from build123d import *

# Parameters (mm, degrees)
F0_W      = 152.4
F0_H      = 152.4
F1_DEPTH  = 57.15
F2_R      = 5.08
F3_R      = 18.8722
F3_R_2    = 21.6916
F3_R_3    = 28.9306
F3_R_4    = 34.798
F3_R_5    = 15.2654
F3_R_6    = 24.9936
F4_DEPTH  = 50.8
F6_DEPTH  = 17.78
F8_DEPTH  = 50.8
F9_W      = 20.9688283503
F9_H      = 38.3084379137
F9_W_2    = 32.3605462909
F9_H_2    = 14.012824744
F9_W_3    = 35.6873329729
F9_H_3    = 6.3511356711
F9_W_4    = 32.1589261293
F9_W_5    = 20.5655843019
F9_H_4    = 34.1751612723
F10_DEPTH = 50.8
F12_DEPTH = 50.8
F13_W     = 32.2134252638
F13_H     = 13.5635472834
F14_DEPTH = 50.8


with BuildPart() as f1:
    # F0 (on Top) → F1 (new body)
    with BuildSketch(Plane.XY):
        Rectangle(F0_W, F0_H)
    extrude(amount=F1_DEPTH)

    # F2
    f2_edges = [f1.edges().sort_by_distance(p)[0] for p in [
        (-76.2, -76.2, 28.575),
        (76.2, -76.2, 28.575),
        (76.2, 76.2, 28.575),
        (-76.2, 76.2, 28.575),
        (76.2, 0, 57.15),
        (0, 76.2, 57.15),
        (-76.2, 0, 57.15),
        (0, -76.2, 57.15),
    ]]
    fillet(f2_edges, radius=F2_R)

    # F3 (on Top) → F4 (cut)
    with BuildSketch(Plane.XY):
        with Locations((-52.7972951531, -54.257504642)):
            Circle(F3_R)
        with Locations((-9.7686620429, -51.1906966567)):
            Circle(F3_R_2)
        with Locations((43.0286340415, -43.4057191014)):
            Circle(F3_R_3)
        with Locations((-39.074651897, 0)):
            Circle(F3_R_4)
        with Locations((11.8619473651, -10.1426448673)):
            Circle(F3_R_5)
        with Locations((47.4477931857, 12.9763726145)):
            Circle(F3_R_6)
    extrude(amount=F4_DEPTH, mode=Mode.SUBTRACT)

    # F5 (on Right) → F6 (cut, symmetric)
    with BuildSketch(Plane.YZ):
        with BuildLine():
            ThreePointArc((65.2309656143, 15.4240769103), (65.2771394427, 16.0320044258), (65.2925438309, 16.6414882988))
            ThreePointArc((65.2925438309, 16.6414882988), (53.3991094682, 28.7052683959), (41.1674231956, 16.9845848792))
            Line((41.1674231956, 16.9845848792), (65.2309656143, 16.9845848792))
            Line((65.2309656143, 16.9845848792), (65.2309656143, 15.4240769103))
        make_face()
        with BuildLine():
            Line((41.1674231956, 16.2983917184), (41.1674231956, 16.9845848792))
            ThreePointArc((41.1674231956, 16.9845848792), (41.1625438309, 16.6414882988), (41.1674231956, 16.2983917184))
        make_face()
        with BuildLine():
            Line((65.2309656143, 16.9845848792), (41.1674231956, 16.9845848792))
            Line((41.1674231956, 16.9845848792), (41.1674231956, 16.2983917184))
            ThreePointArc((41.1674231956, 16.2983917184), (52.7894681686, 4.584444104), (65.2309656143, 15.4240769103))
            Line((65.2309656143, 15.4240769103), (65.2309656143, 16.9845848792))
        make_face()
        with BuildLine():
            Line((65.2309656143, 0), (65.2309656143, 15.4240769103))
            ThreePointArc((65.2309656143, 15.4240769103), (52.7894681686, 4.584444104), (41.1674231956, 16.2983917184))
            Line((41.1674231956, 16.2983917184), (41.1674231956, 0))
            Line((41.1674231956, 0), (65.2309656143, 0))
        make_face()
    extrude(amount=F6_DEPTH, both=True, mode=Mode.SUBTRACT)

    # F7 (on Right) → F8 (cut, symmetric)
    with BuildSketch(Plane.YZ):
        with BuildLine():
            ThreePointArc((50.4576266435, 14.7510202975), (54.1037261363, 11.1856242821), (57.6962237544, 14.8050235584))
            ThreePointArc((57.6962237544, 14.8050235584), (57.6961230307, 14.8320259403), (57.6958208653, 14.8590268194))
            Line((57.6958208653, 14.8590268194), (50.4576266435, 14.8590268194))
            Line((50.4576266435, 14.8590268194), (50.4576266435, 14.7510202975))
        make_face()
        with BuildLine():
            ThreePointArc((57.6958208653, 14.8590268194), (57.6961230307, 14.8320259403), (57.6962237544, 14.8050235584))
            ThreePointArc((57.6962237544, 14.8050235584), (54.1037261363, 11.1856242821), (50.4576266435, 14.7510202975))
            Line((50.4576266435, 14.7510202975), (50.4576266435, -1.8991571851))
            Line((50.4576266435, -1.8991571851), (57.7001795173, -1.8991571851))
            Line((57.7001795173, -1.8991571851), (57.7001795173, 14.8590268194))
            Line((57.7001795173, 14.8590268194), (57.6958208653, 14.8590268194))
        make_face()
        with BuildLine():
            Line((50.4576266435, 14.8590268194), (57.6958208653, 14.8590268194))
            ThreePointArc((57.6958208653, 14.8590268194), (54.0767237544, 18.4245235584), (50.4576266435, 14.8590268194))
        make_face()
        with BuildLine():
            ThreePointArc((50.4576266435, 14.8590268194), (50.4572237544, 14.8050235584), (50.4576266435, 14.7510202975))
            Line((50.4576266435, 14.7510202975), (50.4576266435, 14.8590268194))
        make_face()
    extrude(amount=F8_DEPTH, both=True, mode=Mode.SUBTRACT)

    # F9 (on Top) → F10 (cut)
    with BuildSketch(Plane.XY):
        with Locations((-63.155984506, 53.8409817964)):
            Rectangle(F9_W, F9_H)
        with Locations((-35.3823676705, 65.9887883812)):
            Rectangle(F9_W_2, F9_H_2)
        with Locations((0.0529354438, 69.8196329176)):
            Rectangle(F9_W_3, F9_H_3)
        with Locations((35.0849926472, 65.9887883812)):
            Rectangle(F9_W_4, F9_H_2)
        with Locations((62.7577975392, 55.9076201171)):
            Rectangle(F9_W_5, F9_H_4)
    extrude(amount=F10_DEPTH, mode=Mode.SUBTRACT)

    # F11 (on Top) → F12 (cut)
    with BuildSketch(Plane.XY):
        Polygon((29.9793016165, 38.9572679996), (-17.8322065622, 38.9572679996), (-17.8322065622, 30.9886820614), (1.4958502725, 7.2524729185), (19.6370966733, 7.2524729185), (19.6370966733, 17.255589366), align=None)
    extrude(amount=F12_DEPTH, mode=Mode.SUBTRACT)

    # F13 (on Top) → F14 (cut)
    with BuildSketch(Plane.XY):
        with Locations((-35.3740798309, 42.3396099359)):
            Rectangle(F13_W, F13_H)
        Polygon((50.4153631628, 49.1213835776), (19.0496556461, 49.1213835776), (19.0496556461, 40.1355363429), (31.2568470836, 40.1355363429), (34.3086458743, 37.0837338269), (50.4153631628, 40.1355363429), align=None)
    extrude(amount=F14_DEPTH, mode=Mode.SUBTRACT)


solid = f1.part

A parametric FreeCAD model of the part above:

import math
import FreeCAD as App
import Part
import Sketcher
from FreeCAD import Vector
Q = App.Units.Quantity


def edges_at(feature, points):
    """Names of the edges that pass closest to the given points."""
    edges = feature.Shape.Edges
    near = lambda p: min(range(len(edges)), key=lambda i: edges[i].distToShape(Part.Vertex(*p))[0])
    return sorted({f"Edge{near(p) + 1}" for p in points})

doc = App.newDocument("Part")
body = doc.addObject("PartDesign::Body", "Body")

# Sketch on XY plane
sketch1 = body.newObject("Sketcher::SketchObject", "Sketch")
sketch1.AttachmentSupport = (doc.getObject("XY_Plane"), [""])
sketch1.MapMode = "FlatFace"
sketch1.addGeometry([
    Part.LineSegment(Vector(-76.2, 76.2, 0), Vector(-76.2, -76.2, 0)),
    Part.LineSegment(Vector(-76.2, -76.2, 0), Vector(76.2, -76.2, 0)),
    Part.LineSegment(Vector(76.2, -76.2, 0), Vector(76.2, 76.2, 0)),
    Part.LineSegment(Vector(76.2, 76.2, 0), Vector(-76.2, 76.2, 0)),
], False)
sketch1.addConstraint([
    Sketcher.Constraint("Coincident", 0, 2, 1, 1),
    Sketcher.Constraint("Coincident", 1, 2, 2, 1),
    Sketcher.Constraint("Coincident", 2, 2, 3, 1),
    Sketcher.Constraint("Coincident", 3, 2, 0, 1),
    Sketcher.Constraint("Vertical", 0),
    Sketcher.Constraint("Horizontal", 1),
    Sketcher.Constraint("Vertical", 2),
    Sketcher.Constraint("Horizontal", 3),
    Sketcher.Constraint("Symmetric", 0, 2, 2, 2, -1, 1),
    Sketcher.Constraint("Equal", 3, 0),
    Sketcher.Constraint("DistanceX", 1, 1, 1, 2, Q("6 in")),
])
pad1 = body.newObject("PartDesign::Pad", "Pad")
pad1.Profile = sketch1
pad1.Length = Q("2.25 in")
doc.recompute()

fillet = body.newObject("PartDesign::Fillet", "Fillet")
fillet.Base = (pad1, edges_at(pad1, [
    (-76.2, -76.2, 28.575),
    (76.2, -76.2, 28.575),
    (76.2, 76.2, 28.575),
    (-76.2, 76.2, 28.575),
    (76.2, 0, 57.15),
    (0, 76.2, 57.15),
    (-76.2, 0, 57.15),
    (0, -76.2, 57.15),
]))
fillet.Radius = Q("0.2 in")

# Sketch on XY plane
sketch2 = body.newObject("Sketcher::SketchObject", "Sketch001")
sketch2.AttachmentSupport = (doc.getObject("XY_Plane"), [""])
sketch2.MapMode = "FlatFace"
sketch2.addGeometry([
    Part.Circle(Vector(-52.797295, -54.257505, 0), Vector(0, 0, 1), 18.8722),  # 0
    Part.Circle(Vector(-9.768662, -51.190697, 0), Vector(0, 0, 1), 21.6916),  # 1
    Part.Circle(Vector(43.028634, -43.405719, 0), Vector(0, 0, 1), 28.9306),  # 2
    Part.Circle(Vector(-39.074652, 0, 0), Vector(0, 0, 1), 34.798),  # 3
    Part.Circle(Vector(11.861947, -10.142645, 0), Vector(0, 0, 1), 15.2654),  # 4
    Part.Circle(Vector(47.447793, 12.976373, 0), Vector(0, 0, 1), 24.9936),  # 5
], False)
sketch2.addConstraint([
    Sketcher.Constraint("PointOnObject", 3, 3, -1),
    Sketcher.Constraint("Diameter", 3, Q("2.74 in")),
    Sketcher.Constraint("Diameter", 0, Q("1.486 in")),
    Sketcher.Constraint("Diameter", 1, Q("1.708 in")),
    Sketcher.Constraint("Diameter", 2, Q("2.278 in")),
    Sketcher.Constraint("Diameter", 4, Q("1.202 in")),
    Sketcher.Constraint("Diameter", 5, Q("1.968 in")),
    Sketcher.Constraint("DistanceX", 3, 3, 4, 3, 50.936599),
    Sketcher.Constraint("DistanceY", 2, 3, -1, 1, 43.405719),
    Sketcher.Constraint("DistanceX", 3, 3, -1, 1, 39.074652),
    Sketcher.Constraint("DistanceX", 0, 3, 2, 3, 95.825929),
    Sketcher.Constraint("DistanceX", 3, 3, 1, 3, 29.30599),
    Sketcher.Constraint("DistanceY", 1, 3, 4, 3, 41.048052),
    Sketcher.Constraint("DistanceY", 0, 3, 4, 3, 44.11486),
    Sketcher.Constraint("DistanceX", 2, 3, 5, 3, 4.419159),
    Sketcher.Constraint("DistanceY", 2, 3, 5, 3, 56.382092),
    Sketcher.Constraint("DistanceY", 1, 3, 5, 3, 64.167069),
    Sketcher.Constraint("DistanceX", 0, 3, -1, 1, 52.797295),
])
pocket1 = body.newObject("PartDesign::Pocket", "Pocket")
pocket1.Profile = sketch2
pocket1.Length = Q("2 in")
pocket1.Reversed = True

# Sketch on YZ plane
sketch3 = body.newObject("Sketcher::SketchObject", "Sketch002")
sketch3.AttachmentSupport = (doc.getObject("YZ_Plane"), [""])
sketch3.MapMode = "FlatFace"
sketch3.addGeometry([
    Part.ArcOfCircle(Part.Circle(Vector(53.227544, 16.641488, 0), Vector(0, 0, 1), 12.065), math.radians(-5.791251), math.radians(0)),  # 0
    Part.ArcOfCircle(Part.Circle(Vector(53.227544, 16.641488, 0), Vector(0, 0, 1), 12.065), math.radians(0), math.radians(178.37044)),  # 1
    Part.ArcOfCircle(Part.Circle(Vector(53.227544, 16.641488, 0), Vector(0, 0, 1), 12.065), math.radians(178.37044), math.radians(181.62956)),  # 2
    Part.LineSegment(Vector(41.167423, 16.298392, 0), Vector(41.167423, 0, 0)),  # 3
    Part.LineSegment(Vector(41.167423, 0, 0), Vector(65.230966, 0, 0)),  # 4
    Part.LineSegment(Vector(65.230966, 0, 0), Vector(65.230966, 15.424077, 0)),  # 5
], False)
sketch3.addConstraint([
    Sketcher.Constraint("Tangent", 0, 2, 1, 1),
    Sketcher.Constraint("Tangent", 1, 2, 2, 1),
    Sketcher.Constraint("Coincident", 2, 2, 3, 1),
    Sketcher.Constraint("Coincident", 3, 2, 4, 1),
    Sketcher.Constraint("Coincident", 4, 2, 5, 1),
    Sketcher.Constraint("Coincident", 5, 2, 0, 1),
    Sketcher.Constraint("Vertical", 3),
    Sketcher.Constraint("Horizontal", 4),
    Sketcher.Constraint("Vertical", 5),
    Sketcher.Constraint("Coincident", 2, 3, 0, 3),
    Sketcher.Constraint("PointOnObject", 3, 2, -1),
    Sketcher.Constraint("Horizontal", 2, 3, 0, 2),
    Sketcher.Constraint("Vertical", 1, 2, 2, 2),
    Sketcher.Constraint("Radius", 0, Q("0.475 in")),
    Sketcher.Constraint("DistanceY", 3, 2, 3, 1, 16.298392),
    Sketcher.Constraint("DistanceX", 4, 1, 4, 2, 24.063542),
    Sketcher.Constraint("DistanceY", 5, 1, 5, 2, 15.424077),
    Sketcher.Constraint("DistanceX", -1, 1, 0, 3, 53.227544),
])
pocket2 = body.newObject("PartDesign::Pocket", "Pocket001")
pocket2.Profile = sketch3
pocket2.Length = Q("1.4 in")
pocket2.Midplane = True

# Sketch on YZ plane
sketch4 = body.newObject("Sketcher::SketchObject", "Sketch003")
sketch4.AttachmentSupport = (doc.getObject("YZ_Plane"), [""])
sketch4.MapMode = "FlatFace"
sketch4.addGeometry([
    Part.LineSegment(Vector(50.457627, 14.75102, 0), Vector(50.457627, -1.899157, 0)),  # 0
    Part.LineSegment(Vector(50.457627, -1.899157, 0), Vector(57.70018, -1.899157, 0)),  # 1
    Part.LineSegment(Vector(57.70018, -1.899157, 0), Vector(57.70018, 14.859027, 0)),  # 2
    Part.LineSegment(Vector(57.70018, 14.859027, 0), Vector(57.695821, 14.859027, 0)),  # 3
    Part.ArcOfCircle(Part.Circle(Vector(54.076724, 14.805024, 0), Vector(0, 0, 1), 3.6195), math.radians(0.85489), math.radians(179.14511)),  # 4
    Part.ArcOfCircle(Part.Circle(Vector(54.076724, 14.805024, 0), Vector(0, 0, 1), 3.6195), math.radians(179.14511), math.radians(180.85489)),  # 5
], False)
sketch4.addConstraint([
    Sketcher.Constraint("Coincident", 0, 2, 1, 1),
    Sketcher.Constraint("Coincident", 1, 2, 2, 1),
    Sketcher.Constraint("Coincident", 2, 2, 3, 1),
    Sketcher.Constraint("Coincident", 3, 2, 4, 1),
    Sketcher.Constraint("Tangent", 4, 2, 5, 1),
    Sketcher.Constraint("Coincident", 5, 2, 0, 1),
    Sketcher.Constraint("Vertical", 0),
    Sketcher.Constraint("Horizontal", 1),
    Sketcher.Constraint("Vertical", 2),
    Sketcher.Constraint("Horizontal", 3),
    Sketcher.Constraint("Equal", 4, 5),
    Sketcher.Constraint("Horizontal", 3, 2, 4, 2),
    Sketcher.Constraint("Vertical", 0, 2, 4, 2),
    Sketcher.Constraint("Radius", 4, Q("0.1425 in")),
    Sketcher.Constraint("DistanceX", 3, 2, 3, 1, 0.004359),
    Sketcher.Constraint("DistanceX", 1, 1, 1, 2, 7.242553),
    Sketcher.Constraint("DistanceY", 0, 2, 0, 1, 16.650177),
    Sketcher.Constraint("DistanceX", -1, 1, 1, 2, 57.70018),
    Sketcher.Constraint("DistanceY", -1, 1, 5, 2, 14.75102),
])
pocket3 = body.newObject("PartDesign::Pocket", "Pocket002")
pocket3.Profile = sketch4
pocket3.Length = Q("4 in")
pocket3.Midplane = True

# Sketch on XY plane
sketch5 = body.newObject("Sketcher::SketchObject", "Sketch004")
sketch5.AttachmentSupport = (doc.getObject("XY_Plane"), [""])
sketch5.MapMode = "FlatFace"
sketch5.addGeometry([
    Part.LineSegment(Vector(-73.640399, 72.995201, 0), Vector(-73.640399, 34.686763, 0)),  # 0
    Part.LineSegment(Vector(-73.640399, 34.686763, 0), Vector(-52.67157, 34.686763, 0)),  # 1
    Part.LineSegment(Vector(-52.67157, 34.686763, 0), Vector(-52.67157, 72.995201, 0)),  # 2
    Part.LineSegment(Vector(-52.67157, 72.995201, 0), Vector(-73.640399, 72.995201, 0)),  # 3
    Part.LineSegment(Vector(-51.562641, 72.995201, 0), Vector(-51.562641, 58.982376, 0)),  # 4
    Part.LineSegment(Vector(-51.562641, 58.982376, 0), Vector(-19.202095, 58.982376, 0)),  # 5
    Part.LineSegment(Vector(-19.202095, 58.982376, 0), Vector(-19.202095, 72.995201, 0)),  # 6
    Part.LineSegment(Vector(-19.202095, 72.995201, 0), Vector(-51.562641, 72.995201, 0)),  # 7
    Part.LineSegment(Vector(-17.790731, 72.995201, 0), Vector(-17.790731, 66.644065, 0)),  # 8
    Part.LineSegment(Vector(-17.790731, 66.644065, 0), Vector(17.896602, 66.644065, 0)),  # 9
    Part.LineSegment(Vector(17.896602, 66.644065, 0), Vector(17.896602, 72.995201, 0)),  # 10
    Part.LineSegment(Vector(17.896602, 72.995201, 0), Vector(-17.790731, 72.995201, 0)),  # 11
    Part.LineSegment(Vector(19.00553, 72.995201, 0), Vector(19.00553, 58.982376, 0)),  # 12
    Part.LineSegment(Vector(19.00553, 58.982376, 0), Vector(51.164456, 58.982376, 0)),  # 13
    Part.LineSegment(Vector(51.164456, 58.982376, 0), Vector(51.164456, 72.995201, 0)),  # 14
    Part.LineSegment(Vector(51.164456, 72.995201, 0), Vector(19.00553, 72.995201, 0)),  # 15
    Part.LineSegment(Vector(52.475005, 72.995201, 0), Vector(52.475005, 38.820039, 0)),  # 16
    Part.LineSegment(Vector(52.475005, 38.820039, 0), Vector(73.04059, 38.820039, 0)),  # 17
    Part.LineSegment(Vector(73.04059, 38.820039, 0), Vector(73.04059, 72.995201, 0)),  # 18
    Part.LineSegment(Vector(73.04059, 72.995201, 0), Vector(52.475005, 72.995201, 0)),  # 19
], False)
sketch5.addConstraint([
    Sketcher.Constraint("Coincident", 0, 2, 1, 1),
    Sketcher.Constraint("Coincident", 1, 2, 2, 1),
    Sketcher.Constraint("Coincident", 2, 2, 3, 1),
    Sketcher.Constraint("Coincident", 3, 2, 0, 1),
    Sketcher.Constraint("Coincident", 4, 2, 5, 1),
    Sketcher.Constraint("Coincident", 5, 2, 6, 1),
    Sketcher.Constraint("Coincident", 6, 2, 7, 1),
    Sketcher.Constraint("Coincident", 7, 2, 4, 1),
    Sketcher.Constraint("Coincident", 8, 2, 9, 1),
    Sketcher.Constraint("Coincident", 9, 2, 10, 1),
    Sketcher.Constraint("Coincident", 10, 2, 11, 1),
    Sketcher.Constraint("Coincident", 11, 2, 8, 1),
    Sketcher.Constraint("Coincident", 12, 2, 13, 1),
    Sketcher.Constraint("Coincident", 13, 2, 14, 1),
    Sketcher.Constraint("Coincident", 14, 2, 15, 1),
    Sketcher.Constraint("Coincident", 15, 2, 12, 1),
    Sketcher.Constraint("Coincident", 16, 2, 17, 1),
    Sketcher.Constraint("Coincident", 17, 2, 18, 1),
    Sketcher.Constraint("Coincident", 18, 2, 19, 1),
    Sketcher.Constraint("Coincident", 19, 2, 16, 1),
    Sketcher.Constraint("Vertical", 0),
    Sketcher.Constraint("Horizontal", 1),
    Sketcher.Constraint("Vertical", 2),
    Sketcher.Constraint("Horizontal", 3),
    Sketcher.Constraint("Vertical", 4),
    Sketcher.Constraint("Horizontal", 5),
    Sketcher.Constraint("Vertical", 6),
    Sketcher.Constraint("Horizontal", 7),
    Sketcher.Constraint("Vertical", 8),
    Sketcher.Constraint("Horizontal", 9),
    Sketcher.Constraint("Vertical", 10),
    Sketcher.Constraint("Horizontal", 11),
    Sketcher.Constraint("Vertical", 12),
    Sketcher.Constraint("Horizontal", 13),
    Sketcher.Constraint("Vertical", 14),
    Sketcher.Constraint("Horizontal", 15),
    Sketcher.Constraint("Vertical", 16),
    Sketcher.Constraint("Horizontal", 17),
    Sketcher.Constraint("Vertical", 18),
    Sketcher.Constraint("Horizontal", 19),
    Sketcher.Constraint("Horizontal", 3, 2, 6, 2),
    Sketcher.Constraint("Horizontal", 7, 2, 10, 2),
    Sketcher.Constraint("Horizontal", 5, 2, 12, 2),
    Sketcher.Constraint("Horizontal", 11, 2, 14, 2),
    Sketcher.Constraint("Horizontal", 15, 2, 18, 2),
    Sketcher.Constraint("DistanceX", 1, 1, 1, 2, 20.968828),
    Sketcher.Constraint("DistanceY", 16, 2, 16, 1, 34.175161),
    Sketcher.Constraint("DistanceX", 0, 2, -1, 1, 73.640399),
    Sketcher.Constraint("DistanceY", -1, 1, 2, 2, 72.995201),
    Sketcher.Constraint("DistanceX", -1, 1, 9, 2, 17.896602),
    Sketcher.Constraint("DistanceX", 5, 1, 5, 2, 32.360546),
    Sketcher.Constraint("DistanceX", 9, 1, 9, 2, 35.687333),
    Sketcher.Constraint("DistanceX", 13, 1, 13, 2, 32.158926),
    Sketcher.Constraint("DistanceX", 17, 1, 17, 2, 20.565584),
    Sketcher.Constraint("DistanceY", 0, 2, 0, 1, 38.308438),
    Sketcher.Constraint("DistanceY", 4, 2, 4, 1, 14.012825),
    Sketcher.Constraint("DistanceY", 8, 2, 8, 1, 6.351136),
    Sketcher.Constraint("DistanceX", 4, 2, -1, 1, 51.562641),
    Sketcher.Constraint("DistanceX", -1, 1, 12, 2, 19.00553),
    Sketcher.Constraint("DistanceX", -1, 1, 17, 2, 73.04059),
])
pocket4 = body.newObject("PartDesign::Pocket", "Pocket003")
pocket4.Profile = sketch5
pocket4.Length = Q("2 in")
pocket4.Reversed = True

# Sketch on XY plane
sketch6 = body.newObject("Sketcher::SketchObject", "Sketch005")
sketch6.AttachmentSupport = (doc.getObject("XY_Plane"), [""])
sketch6.MapMode = "FlatFace"
sketch6.addGeometry([
    Part.LineSegment(Vector(29.979302, 38.957268, 0), Vector(-17.832207, 38.957268, 0)),  # 0
    Part.LineSegment(Vector(-17.832207, 38.957268, 0), Vector(-17.832207, 30.988682, 0)),  # 1
    Part.LineSegment(Vector(-17.832207, 30.988682, 0), Vector(1.49585, 7.252473, 0)),  # 2
    Part.LineSegment(Vector(1.49585, 7.252473, 0), Vector(19.637097, 7.252473, 0)),  # 3
    Part.LineSegment(Vector(19.637097, 7.252473, 0), Vector(19.637097, 17.255589, 0)),  # 4
    Part.LineSegment(Vector(19.637097, 17.255589, 0), Vector(29.979302, 38.957268, 0)),  # 5
], False)
sketch6.addConstraint([
    Sketcher.Constraint("Coincident", 0, 2, 1, 1),
    Sketcher.Constraint("Coincident", 1, 2, 2, 1),
    Sketcher.Constraint("Coincident", 2, 2, 3, 1),
    Sketcher.Constraint("Coincident", 3, 2, 4, 1),
    Sketcher.Constraint("Coincident", 4, 2, 5, 1),
    Sketcher.Constraint("Coincident", 5, 2, 0, 1),
    Sketcher.Constraint("Horizontal", 0),
    Sketcher.Constraint("Vertical", 1),
    Sketcher.Constraint("Horizontal", 3),
    Sketcher.Constraint("Vertical", 4),
    Sketcher.Constraint("DistanceX", 0, 2, 0, 1, 47.811508),
    Sketcher.Constraint("DistanceX", -1, 1, 5, 2, 29.979302),
    Sketcher.Constraint("Distance", 2, 30.610152),
    Sketcher.Constraint("Distance", 5, 24.040051),
    Sketcher.Constraint("DistanceX", 3, 1, 3, 2, 18.141246),
    Sketcher.Constraint("DistanceY", 1, 2, 1, 1, 7.968586),
    Sketcher.Constraint("DistanceY", 4, 1, 4, 2, 10.003116),
    Sketcher.Constraint("DistanceY", -1, 1, 4, 2, 17.255589),
])
pocket5 = body.newObject("PartDesign::Pocket", "Pocket004")
pocket5.Profile = sketch6
pocket5.Length = Q("2 in")
pocket5.Reversed = True

# Sketch on XY plane
sketch7 = body.newObject("Sketcher::SketchObject", "Sketch006")
sketch7.AttachmentSupport = (doc.getObject("XY_Plane"), [""])
sketch7.MapMode = "FlatFace"
sketch7.addGeometry([
    Part.LineSegment(Vector(-51.480792, 49.121384, 0), Vector(-51.480792, 35.557836, 0)),  # 0
    Part.LineSegment(Vector(-51.480792, 35.557836, 0), Vector(-19.267367, 35.557836, 0)),  # 1
    Part.LineSegment(Vector(-19.267367, 35.557836, 0), Vector(-19.267367, 49.121384, 0)),  # 2
    Part.LineSegment(Vector(-19.267367, 49.121384, 0), Vector(-51.480792, 49.121384, 0)),  # 3
    Part.LineSegment(Vector(50.415363, 49.121384, 0), Vector(19.049656, 49.121384, 0)),  # 4
    Part.LineSegment(Vector(19.049656, 49.121384, 0), Vector(19.049656, 40.135536, 0)),  # 5
    Part.LineSegment(Vector(19.049656, 40.135536, 0), Vector(31.256847, 40.135536, 0)),  # 6
    Part.LineSegment(Vector(31.256847, 40.135536, 0), Vector(34.308646, 37.083734, 0)),  # 7
    Part.LineSegment(Vector(34.308646, 37.083734, 0), Vector(50.415363, 40.135536, 0)),  # 8
    Part.LineSegment(Vector(50.415363, 40.135536, 0), Vector(50.415363, 49.121384, 0)),  # 9
], False)
sketch7.addConstraint([
    Sketcher.Constraint("Coincident", 0, 2, 1, 1),
    Sketcher.Constraint("Coincident", 1, 2, 2, 1),
    Sketcher.Constraint("Coincident", 2, 2, 3, 1),
    Sketcher.Constraint("Coincident", 3, 2, 0, 1),
    Sketcher.Constraint("Coincident", 4, 2, 5, 1),
    Sketcher.Constraint("Coincident", 5, 2, 6, 1),
    Sketcher.Constraint("Coincident", 6, 2, 7, 1),
    Sketcher.Constraint("Coincident", 7, 2, 8, 1),
    Sketcher.Constraint("Coincident", 8, 2, 9, 1),
    Sketcher.Constraint("Coincident", 9, 2, 4, 1),
    Sketcher.Constraint("Vertical", 0),
    Sketcher.Constraint("Horizontal", 1),
    Sketcher.Constraint("Vertical", 2),
    Sketcher.Constraint("Horizontal", 3),
    Sketcher.Constraint("Horizontal", 4),
    Sketcher.Constraint("Vertical", 5),
    Sketcher.Constraint("Horizontal", 6),
    Sketcher.Constraint("Vertical", 9),
    Sketcher.Constraint("Horizontal", 3, 2, 4, 2),
    Sketcher.Constraint("Horizontal", 6, 2, 8, 2),
    Sketcher.Constraint("DistanceX", 6, 1, 6, 2, 12.207191),
    Sketcher.Constraint("DistanceY", 1, 2, 5, 2, 4.5777),
    Sketcher.Constraint("DistanceX", 6, 2, 7, 2, 3.051799),
    Sketcher.Constraint("DistanceX", 1, 1, 1, 2, 32.213425),
    Sketcher.Constraint("DistanceX", 4, 2, 4, 1, 31.365708),
    Sketcher.Constraint("DistanceY", 0, 2, 0, 1, 13.563547),
    Sketcher.Constraint("DistanceX", 3, 2, 4, 2, 70.530448),
    Sketcher.Constraint("DistanceY", 7, 2, 4, 2, 12.03765),
    Sketcher.Constraint("DistanceX", 0, 2, -1, 1, 51.480792),
    Sketcher.Constraint("DistanceY", -1, 1, 0, 2, 35.557836),
])
pocket6 = body.newObject("PartDesign::Pocket", "Pocket005")
pocket6.Profile = sketch7
pocket6.Length = Q("2 in")
pocket6.Reversed = True

doc.recompute()
